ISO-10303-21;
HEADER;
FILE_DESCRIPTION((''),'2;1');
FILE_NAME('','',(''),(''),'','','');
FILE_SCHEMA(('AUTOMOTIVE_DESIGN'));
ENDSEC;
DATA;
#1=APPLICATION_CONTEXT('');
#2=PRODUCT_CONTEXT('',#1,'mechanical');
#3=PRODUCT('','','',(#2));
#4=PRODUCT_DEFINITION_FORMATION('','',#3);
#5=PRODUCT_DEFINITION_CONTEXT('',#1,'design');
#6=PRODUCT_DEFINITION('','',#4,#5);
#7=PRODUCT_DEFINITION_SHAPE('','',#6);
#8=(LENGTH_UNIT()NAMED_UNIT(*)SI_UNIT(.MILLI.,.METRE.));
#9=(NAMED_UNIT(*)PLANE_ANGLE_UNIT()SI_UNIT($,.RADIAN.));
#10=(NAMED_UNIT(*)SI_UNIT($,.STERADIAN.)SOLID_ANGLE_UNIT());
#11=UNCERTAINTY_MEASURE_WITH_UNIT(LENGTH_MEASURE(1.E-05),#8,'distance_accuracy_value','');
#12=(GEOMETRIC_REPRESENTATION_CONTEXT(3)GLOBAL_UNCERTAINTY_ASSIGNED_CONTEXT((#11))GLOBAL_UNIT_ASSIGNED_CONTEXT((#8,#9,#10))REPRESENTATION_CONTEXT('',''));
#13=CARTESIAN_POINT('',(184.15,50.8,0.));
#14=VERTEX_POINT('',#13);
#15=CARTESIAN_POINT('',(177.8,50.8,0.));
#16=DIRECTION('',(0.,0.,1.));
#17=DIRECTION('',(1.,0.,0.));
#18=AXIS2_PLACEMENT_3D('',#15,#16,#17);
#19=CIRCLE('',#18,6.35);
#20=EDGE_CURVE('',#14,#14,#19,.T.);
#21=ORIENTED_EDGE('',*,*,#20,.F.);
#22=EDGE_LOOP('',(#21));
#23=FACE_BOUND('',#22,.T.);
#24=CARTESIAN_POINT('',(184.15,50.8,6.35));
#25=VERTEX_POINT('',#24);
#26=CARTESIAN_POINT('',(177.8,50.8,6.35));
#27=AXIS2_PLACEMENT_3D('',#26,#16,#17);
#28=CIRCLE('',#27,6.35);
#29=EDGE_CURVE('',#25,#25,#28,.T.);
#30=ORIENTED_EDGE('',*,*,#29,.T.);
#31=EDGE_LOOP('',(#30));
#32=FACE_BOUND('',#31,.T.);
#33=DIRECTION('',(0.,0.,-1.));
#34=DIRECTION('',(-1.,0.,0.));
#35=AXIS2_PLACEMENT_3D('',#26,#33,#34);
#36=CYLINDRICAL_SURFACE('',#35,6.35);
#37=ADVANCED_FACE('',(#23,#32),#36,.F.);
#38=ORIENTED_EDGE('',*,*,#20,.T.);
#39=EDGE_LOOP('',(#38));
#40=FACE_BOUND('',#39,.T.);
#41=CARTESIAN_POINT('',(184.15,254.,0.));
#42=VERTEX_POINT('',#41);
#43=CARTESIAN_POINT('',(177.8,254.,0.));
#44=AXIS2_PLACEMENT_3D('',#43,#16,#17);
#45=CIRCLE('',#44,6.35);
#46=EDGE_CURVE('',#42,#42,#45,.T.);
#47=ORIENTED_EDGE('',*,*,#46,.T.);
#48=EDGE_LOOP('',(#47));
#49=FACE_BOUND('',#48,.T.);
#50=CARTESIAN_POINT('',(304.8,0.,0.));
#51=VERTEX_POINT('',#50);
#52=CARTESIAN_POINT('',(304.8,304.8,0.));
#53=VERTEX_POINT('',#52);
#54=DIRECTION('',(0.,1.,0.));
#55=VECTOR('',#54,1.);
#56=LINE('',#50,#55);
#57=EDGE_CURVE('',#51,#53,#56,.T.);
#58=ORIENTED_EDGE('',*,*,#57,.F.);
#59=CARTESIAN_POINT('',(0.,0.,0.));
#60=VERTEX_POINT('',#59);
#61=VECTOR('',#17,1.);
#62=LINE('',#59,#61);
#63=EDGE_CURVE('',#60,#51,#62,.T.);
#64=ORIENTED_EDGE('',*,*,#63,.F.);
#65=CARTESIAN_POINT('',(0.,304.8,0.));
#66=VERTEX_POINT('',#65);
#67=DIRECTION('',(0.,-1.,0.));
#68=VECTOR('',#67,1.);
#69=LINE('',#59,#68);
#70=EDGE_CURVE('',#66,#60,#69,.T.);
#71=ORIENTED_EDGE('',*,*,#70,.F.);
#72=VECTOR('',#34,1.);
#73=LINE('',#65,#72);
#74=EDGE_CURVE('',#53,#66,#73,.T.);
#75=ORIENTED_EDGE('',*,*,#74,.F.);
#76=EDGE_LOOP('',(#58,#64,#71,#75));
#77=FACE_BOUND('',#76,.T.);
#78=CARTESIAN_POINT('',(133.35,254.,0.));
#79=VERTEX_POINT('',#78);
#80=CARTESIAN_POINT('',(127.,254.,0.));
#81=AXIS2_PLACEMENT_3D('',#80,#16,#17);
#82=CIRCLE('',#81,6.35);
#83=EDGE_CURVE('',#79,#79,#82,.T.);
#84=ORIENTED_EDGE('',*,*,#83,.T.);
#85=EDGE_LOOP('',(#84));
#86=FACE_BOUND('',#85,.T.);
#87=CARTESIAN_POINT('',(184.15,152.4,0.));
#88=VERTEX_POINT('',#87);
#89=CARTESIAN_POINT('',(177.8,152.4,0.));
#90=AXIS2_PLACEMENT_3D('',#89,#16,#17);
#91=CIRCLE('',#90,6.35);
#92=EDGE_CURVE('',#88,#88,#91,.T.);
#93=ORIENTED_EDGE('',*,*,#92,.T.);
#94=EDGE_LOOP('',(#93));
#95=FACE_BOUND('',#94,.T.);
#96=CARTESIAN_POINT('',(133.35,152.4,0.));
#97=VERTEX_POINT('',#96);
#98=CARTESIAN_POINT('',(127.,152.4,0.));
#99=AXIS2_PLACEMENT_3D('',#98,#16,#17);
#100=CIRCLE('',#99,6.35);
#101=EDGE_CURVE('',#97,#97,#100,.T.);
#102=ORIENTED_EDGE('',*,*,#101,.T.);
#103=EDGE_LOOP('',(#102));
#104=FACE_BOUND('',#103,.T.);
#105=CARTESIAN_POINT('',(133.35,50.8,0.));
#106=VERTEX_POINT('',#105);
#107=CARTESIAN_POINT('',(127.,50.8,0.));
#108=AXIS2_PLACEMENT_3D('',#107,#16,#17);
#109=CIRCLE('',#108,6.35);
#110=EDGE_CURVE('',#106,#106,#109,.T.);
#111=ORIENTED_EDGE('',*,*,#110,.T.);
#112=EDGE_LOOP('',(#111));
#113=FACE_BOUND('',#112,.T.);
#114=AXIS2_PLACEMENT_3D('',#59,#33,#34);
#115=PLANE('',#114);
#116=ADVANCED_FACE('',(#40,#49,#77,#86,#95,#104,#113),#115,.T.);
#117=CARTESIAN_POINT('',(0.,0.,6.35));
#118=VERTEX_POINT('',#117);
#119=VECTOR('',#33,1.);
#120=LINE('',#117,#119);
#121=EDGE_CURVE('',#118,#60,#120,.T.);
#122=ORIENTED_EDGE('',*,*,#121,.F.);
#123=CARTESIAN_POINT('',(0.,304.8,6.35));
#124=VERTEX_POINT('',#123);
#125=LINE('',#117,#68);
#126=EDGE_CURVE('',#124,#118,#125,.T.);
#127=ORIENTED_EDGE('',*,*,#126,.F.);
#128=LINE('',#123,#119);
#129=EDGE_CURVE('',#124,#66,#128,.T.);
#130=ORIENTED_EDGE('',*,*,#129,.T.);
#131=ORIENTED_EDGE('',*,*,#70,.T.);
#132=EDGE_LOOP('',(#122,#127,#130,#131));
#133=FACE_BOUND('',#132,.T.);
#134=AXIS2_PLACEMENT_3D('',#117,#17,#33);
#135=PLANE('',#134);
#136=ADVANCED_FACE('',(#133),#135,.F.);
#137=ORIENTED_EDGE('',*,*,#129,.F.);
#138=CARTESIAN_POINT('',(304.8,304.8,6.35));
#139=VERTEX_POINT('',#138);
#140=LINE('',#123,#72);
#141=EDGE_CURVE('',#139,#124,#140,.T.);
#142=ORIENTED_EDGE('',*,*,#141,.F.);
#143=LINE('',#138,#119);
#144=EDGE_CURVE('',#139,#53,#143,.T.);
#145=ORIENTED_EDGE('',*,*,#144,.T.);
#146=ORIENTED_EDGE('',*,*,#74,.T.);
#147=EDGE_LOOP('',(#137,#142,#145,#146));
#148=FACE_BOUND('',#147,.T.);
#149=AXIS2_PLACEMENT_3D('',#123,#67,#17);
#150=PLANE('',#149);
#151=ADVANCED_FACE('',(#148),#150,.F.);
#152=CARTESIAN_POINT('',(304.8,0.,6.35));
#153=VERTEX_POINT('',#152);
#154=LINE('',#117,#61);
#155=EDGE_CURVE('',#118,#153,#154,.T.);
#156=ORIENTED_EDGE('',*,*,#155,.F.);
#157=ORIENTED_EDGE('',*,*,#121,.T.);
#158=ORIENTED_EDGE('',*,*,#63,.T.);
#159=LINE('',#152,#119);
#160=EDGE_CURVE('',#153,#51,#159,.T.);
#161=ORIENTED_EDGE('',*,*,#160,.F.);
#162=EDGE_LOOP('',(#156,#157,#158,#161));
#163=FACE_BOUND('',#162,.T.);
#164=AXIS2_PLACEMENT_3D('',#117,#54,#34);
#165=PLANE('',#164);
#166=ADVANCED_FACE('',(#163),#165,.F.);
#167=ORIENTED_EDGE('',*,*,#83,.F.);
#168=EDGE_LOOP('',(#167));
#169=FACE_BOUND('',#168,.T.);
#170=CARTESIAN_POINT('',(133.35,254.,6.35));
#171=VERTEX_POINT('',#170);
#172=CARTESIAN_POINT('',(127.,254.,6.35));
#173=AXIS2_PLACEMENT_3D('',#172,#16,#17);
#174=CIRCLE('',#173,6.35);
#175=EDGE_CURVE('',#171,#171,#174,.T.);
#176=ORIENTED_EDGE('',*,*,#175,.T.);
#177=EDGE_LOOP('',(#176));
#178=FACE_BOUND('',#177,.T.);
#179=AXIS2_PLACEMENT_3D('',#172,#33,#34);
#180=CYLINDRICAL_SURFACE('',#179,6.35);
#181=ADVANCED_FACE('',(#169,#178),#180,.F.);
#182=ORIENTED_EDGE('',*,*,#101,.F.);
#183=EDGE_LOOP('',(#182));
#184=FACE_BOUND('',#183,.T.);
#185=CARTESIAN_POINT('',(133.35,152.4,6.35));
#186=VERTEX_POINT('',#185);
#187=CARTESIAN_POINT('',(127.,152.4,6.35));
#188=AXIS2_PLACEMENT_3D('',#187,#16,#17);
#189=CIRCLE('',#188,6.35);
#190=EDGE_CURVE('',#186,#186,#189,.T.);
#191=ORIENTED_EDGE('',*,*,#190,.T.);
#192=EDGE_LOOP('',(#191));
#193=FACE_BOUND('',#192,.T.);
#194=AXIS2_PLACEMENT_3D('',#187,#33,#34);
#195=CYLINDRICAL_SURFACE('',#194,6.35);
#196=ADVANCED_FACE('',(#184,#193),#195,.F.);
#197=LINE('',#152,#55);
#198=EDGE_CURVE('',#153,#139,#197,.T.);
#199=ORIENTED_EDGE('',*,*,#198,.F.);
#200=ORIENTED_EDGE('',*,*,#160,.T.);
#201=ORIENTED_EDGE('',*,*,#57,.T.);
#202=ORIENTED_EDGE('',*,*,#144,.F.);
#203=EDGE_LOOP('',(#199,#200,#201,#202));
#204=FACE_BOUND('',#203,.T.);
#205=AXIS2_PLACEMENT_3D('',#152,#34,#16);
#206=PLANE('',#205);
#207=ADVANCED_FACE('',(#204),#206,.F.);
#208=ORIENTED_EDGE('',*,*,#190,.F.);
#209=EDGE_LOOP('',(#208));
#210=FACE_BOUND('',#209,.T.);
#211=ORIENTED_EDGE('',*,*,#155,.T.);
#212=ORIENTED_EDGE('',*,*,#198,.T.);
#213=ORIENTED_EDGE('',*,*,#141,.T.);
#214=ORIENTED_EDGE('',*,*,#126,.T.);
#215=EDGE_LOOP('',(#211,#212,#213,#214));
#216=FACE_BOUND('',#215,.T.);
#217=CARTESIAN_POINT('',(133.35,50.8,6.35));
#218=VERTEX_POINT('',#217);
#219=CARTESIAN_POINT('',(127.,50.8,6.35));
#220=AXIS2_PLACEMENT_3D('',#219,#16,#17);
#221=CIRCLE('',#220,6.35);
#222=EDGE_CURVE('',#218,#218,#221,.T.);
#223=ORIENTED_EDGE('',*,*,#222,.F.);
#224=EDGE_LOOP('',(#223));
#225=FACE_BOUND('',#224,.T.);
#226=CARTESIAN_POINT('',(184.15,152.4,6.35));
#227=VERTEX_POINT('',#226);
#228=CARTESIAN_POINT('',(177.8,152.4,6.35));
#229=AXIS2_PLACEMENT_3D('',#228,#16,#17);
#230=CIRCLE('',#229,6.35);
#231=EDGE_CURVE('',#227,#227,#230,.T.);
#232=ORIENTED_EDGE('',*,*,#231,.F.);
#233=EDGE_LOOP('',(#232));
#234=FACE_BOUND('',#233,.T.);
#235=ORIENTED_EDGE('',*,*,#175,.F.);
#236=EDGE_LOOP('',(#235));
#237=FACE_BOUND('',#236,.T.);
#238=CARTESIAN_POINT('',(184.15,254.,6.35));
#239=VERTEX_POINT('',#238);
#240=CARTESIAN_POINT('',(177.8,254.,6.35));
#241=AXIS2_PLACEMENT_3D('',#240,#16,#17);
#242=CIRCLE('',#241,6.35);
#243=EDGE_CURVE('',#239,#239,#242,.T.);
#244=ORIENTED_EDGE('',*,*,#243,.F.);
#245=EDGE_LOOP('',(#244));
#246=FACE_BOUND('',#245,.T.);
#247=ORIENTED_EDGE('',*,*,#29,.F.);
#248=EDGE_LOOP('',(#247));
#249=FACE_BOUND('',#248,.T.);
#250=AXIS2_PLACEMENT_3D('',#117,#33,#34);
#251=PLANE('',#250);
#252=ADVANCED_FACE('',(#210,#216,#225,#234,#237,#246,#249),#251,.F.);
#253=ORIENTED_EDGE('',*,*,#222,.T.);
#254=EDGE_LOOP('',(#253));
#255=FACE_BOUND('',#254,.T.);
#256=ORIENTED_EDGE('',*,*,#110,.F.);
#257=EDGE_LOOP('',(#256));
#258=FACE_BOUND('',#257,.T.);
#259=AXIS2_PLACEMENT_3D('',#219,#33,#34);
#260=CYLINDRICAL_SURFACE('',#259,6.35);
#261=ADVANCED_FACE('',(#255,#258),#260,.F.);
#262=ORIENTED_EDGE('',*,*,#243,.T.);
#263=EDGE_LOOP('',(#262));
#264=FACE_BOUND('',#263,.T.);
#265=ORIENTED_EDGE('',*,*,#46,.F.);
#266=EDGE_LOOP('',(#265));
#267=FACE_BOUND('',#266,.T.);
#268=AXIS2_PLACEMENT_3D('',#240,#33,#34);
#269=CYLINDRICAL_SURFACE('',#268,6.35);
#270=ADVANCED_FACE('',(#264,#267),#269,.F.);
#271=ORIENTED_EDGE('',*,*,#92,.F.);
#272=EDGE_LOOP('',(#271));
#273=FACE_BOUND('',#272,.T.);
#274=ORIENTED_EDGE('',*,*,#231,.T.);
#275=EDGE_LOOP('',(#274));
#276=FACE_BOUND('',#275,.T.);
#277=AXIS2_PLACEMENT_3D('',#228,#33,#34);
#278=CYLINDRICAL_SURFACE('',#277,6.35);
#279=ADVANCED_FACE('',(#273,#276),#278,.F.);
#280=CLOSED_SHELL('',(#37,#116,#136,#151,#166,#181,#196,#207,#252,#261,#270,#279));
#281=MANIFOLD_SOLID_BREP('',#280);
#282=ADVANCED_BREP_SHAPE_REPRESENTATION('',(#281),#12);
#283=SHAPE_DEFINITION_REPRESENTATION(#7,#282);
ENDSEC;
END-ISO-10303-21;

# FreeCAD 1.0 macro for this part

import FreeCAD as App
import Part
import Sketcher
from FreeCAD import Vector
Q = App.Units.Quantity

doc = App.newDocument("Part")
body = doc.addObject("PartDesign::Body", "Body")

sketch1 = doc.addObject("Sketcher::SketchObject", "Sketch")
body.addObject(sketch1)
sketch1.AttachmentSupport = (doc.XY_Plane, [""])
sketch1.MapMode = "FlatFace"
sketch1.addGeometry([
    Part.LineSegment(Vector(0, 305, 0), Vector(0, 0, 0)),
    Part.LineSegment(Vector(0, 0, 0), Vector(305, 0, 0)),
    Part.LineSegment(Vector(305, 0, 0), Vector(305, 305, 0)),
    Part.LineSegment(Vector(305, 305, 0), Vector(0, 305, 0)),
    Part.Circle(Vector(127, 51, 0), Vector(0, 0, 1), 6),
    Part.Circle(Vector(178, 51, 0), Vector(0, 0, 1), 6),
    Part.Circle(Vector(127, 152, 0), Vector(0, 0, 1), 6),
    Part.Circle(Vector(127, 254, 0), Vector(0, 0, 1), 6),
    Part.Circle(Vector(178, 152, 0), Vector(0, 0, 1), 6),
    Part.Circle(Vector(178, 254, 0), Vector(0, 0, 1), 6),
], False)
sketch1.addConstraint([
    Sketcher.Constraint("Coincident", 0, 2, 1, 1),
    Sketcher.Constraint("Coincident", 1, 2, 2, 1),
    Sketcher.Constraint("Coincident", 2, 2, 3, 1),
    Sketcher.Constraint("Coincident", 3, 2, 0, 1),
    Sketcher.Constraint("Vertical", 0),
    Sketcher.Constraint("Horizontal", 1),
    Sketcher.Constraint("Vertical", 2),
    Sketcher.Constraint("Horizontal", 3),
    Sketcher.Constraint("Coincident", 0, 2, -1, 1),
    Sketcher.Constraint("Equal", 4, 5),
    Sketcher.Constraint("Equal", 5, 6),
    Sketcher.Constraint("Equal", 6, 7),
    Sketcher.Constraint("Equal", 7, 8),
    Sketcher.Constraint("Equal", 8, 9),
    Sketcher.Constraint("Horizontal", 4, 3, 5, 3),
    Sketcher.Constraint("Horizontal", 6, 3, 8, 3),
    Sketcher.Constraint("Horizontal", 7, 3, 9, 3),
    Sketcher.Constraint("Vertical", 4, 3, 6, 3),
    Sketcher.Constraint("Vertical", 6, 3, 7, 3),
    Sketcher.Constraint("Vertical", 5, 3, 8, 3),
    Sketcher.Constraint("Vertical", 8, 3, 9, 3),
    Sketcher.Constraint("Equal", 3, 0),
    Sketcher.Constraint("Diameter", 4, Q("0.5 in")),
    Sketcher.Constraint("DistanceX", 1, 1, 1, 2, Q("12 in")),
    Sketcher.Constraint("DistanceX", -1, 1, 4, 3, Q("5 in")),
    Sketcher.Constraint("DistanceY", -1, 1, 4, 3, Q("2 in")),
    Sketcher.Constraint("DistanceX", -1, 1, 5, 3, Q("7 in")),
    Sketcher.Constraint("DistanceY", -1, 1, 6, 3, Q("6 in")),
    Sketcher.Constraint("DistanceY", -1, 1, 7, 3, Q("10 in")),
])
pad1 = doc.addObject("PartDesign::Pad", "Pad")
body.addObject(pad1)
pad1.Profile = sketch1
pad1.Length = Q("0.25 in")

doc.recompute()
